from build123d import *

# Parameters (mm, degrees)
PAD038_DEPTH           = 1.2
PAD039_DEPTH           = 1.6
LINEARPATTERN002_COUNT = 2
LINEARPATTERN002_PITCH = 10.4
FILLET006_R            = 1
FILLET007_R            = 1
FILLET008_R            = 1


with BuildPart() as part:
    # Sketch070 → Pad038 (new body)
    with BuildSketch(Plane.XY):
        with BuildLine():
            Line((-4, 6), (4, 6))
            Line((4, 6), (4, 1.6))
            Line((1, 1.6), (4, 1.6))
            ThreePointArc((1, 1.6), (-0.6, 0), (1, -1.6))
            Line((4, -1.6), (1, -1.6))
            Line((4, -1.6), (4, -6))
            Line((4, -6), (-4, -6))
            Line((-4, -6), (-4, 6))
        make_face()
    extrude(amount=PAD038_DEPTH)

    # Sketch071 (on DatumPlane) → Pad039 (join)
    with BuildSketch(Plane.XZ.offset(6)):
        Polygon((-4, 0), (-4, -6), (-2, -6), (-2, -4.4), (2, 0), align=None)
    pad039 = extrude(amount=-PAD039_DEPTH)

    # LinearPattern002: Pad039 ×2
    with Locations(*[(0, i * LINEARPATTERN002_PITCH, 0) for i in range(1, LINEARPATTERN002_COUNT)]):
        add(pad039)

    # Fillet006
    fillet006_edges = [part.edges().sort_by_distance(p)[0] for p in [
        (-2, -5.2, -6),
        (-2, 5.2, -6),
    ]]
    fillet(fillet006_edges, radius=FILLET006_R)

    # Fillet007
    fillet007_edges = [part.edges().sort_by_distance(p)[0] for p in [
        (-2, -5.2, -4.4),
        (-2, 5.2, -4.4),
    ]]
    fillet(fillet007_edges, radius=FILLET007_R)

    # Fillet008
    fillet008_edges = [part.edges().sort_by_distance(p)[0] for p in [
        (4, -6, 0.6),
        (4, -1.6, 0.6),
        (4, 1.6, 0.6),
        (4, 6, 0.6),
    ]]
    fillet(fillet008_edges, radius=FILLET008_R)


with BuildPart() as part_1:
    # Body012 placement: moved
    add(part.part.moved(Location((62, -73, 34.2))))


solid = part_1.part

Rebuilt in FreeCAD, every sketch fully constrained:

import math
import FreeCAD as App
import Part
import Sketcher

V = App.Vector
Q = App.Units.Quantity


def edges_at(feature, points):
    """Names of the edges that pass closest to the given points."""
    edges = feature.Shape.Edges
    near = lambda p: min(range(len(edges)), key=lambda i: edges[i].distToShape(Part.Vertex(*p))[0])
    return sorted({f"Edge{near(p) + 1}" for p in points})


def add_polygon(sketch, points):
    """Adds a closed chain of lines whose ends are joined by coincident constraints."""
    first, n = sketch.GeometryCount, len(points)
    for a, b in zip(points, points[1:] + points[:1]):
        sketch.addGeometry(Part.LineSegment(App.Vector(*a, 0), App.Vector(*b, 0)), False)
    for i in range(n):
        sketch.addConstraint(Sketcher.Constraint("Coincident", first + i, 2, first + (i + 1) % n, 1))

doc = App.newDocument("Part")
params = doc.addObject("Spreadsheet::Sheet", "Params")
for row, (alias, value) in enumerate([
    ("sketch1_radius", "1.6 mm"),
    ("sketch1_width", "8 mm"),
    ("sketch1_width2", "3 mm"),
    ("sketch1_height", "12 mm"),
    ("pad1_length", "1.2 mm"),
    ("sketch2_width", "2 mm"),
    ("sketch2_width2", "6 mm"),
    ("sketch2_height", "1.6 mm"),
    ("pad2_length", "1.6 mm"),
    ("linearpattern_pitch", "10.4 mm"),
    ("fillet_radius", "1 mm"),
    ("fillet2_radius", "1 mm"),
    ("fillet3_radius", "1 mm"),
], start=1):
    params.set(f"A{row}", alias)
    params.set(f"B{row}", "=" + value)
    params.setAlias(f"B{row}", alias)

body = doc.addObject("PartDesign::Body", "Body")

# Sketch on XY plane
sketch1 = body.newObject("Sketcher::SketchObject", "Sketch")
sketch1.AttachmentSupport = (doc.getObject("XY_Plane"), [""])
sketch1.MapMode = "FlatFace"
sketch1.addGeometry([
    Part.LineSegment(V(4, 6, 0), V(-4, 6, 0)),  # 0
    Part.LineSegment(V(-4, 6, 0), V(-4, -6, 0)),  # 1
    Part.LineSegment(V(-4, -6, 0), V(4, -6, 0)),  # 2
    Part.LineSegment(V(4, -6, 0), V(4, -1.6, 0)),  # 3
    Part.LineSegment(V(4, -1.6, 0), V(1, -1.6, 0)),  # 4
    Part.ArcOfCircle(Part.Circle(V(1, 0, 0), V(0, 0, 1), 1.6), math.radians(90), math.radians(270)),  # 5
    Part.LineSegment(V(1, 1.6, 0), V(4, 1.6, 0)),  # 6
    Part.LineSegment(V(4, 1.6, 0), V(4, 6, 0)),  # 7
], False)
sketch1.addConstraint([
    Sketcher.Constraint("Coincident", 0, 2, 1, 1),
    Sketcher.Constraint("Coincident", 1, 2, 2, 1),
    Sketcher.Constraint("Coincident", 2, 2, 3, 1),
    Sketcher.Constraint("Coincident", 3, 2, 4, 1),
    Sketcher.Constraint("Tangent", 4, 2, 5, 2),
    Sketcher.Constraint("Tangent", 5, 1, 6, 1),
    Sketcher.Constraint("Coincident", 6, 2, 7, 1),
    Sketcher.Constraint("Coincident", 7, 2, 0, 1),
    Sketcher.Constraint("Horizontal", 0),
    Sketcher.Constraint("Vertical", 1),
    Sketcher.Constraint("Horizontal", 2),
    Sketcher.Constraint("Vertical", 3),
    Sketcher.Constraint("Horizontal", 4),
    Sketcher.Constraint("Horizontal", 6),
    Sketcher.Constraint("Vertical", 7),
    Sketcher.Constraint("Symmetric", 0, 2, 2, 2, -1, 1),
    Sketcher.Constraint("Symmetric", 3, 2, 6, 2, -1),
    Sketcher.Constraint("Radius", 5, Q("1.6 mm")),
    Sketcher.Constraint("DistanceX", 0, 2, 0, 1, Q("8 mm")),
    Sketcher.Constraint("DistanceX", 4, 2, 4, 1, Q("3 mm")),
    Sketcher.Constraint("DistanceY", 1, 2, 1, 1, Q("12 mm")),
])
sketch1.setExpression("Constraints[17]", "Params.sketch1_radius")
sketch1.setExpression("Constraints[18]", "Params.sketch1_width")
sketch1.setExpression("Constraints[19]", "Params.sketch1_width2")
sketch1.setExpression("Constraints[20]", "Params.sketch1_height")
pad1 = body.newObject("PartDesign::Pad", "Pad")
pad1.Profile = sketch1
pad1.setExpression("Length", "Params.pad1_length")

# Sketch on XZ plane
sketch2 = body.newObject("Sketcher::SketchObject", "Sketch001")
sketch2.AttachmentSupport = (doc.getObject("XZ_Plane"), [""])
sketch2.MapMode = "FlatFace"
sketch2.AttachmentOffset = App.Placement(V(0, 0, 6), App.Rotation())
add_polygon(sketch2, [(-4, 0), (-4, -6), (-2, -6), (-2, -4.4), (2, 0)])  # lines 0-4
sketch2.addConstraint([
    Sketcher.Constraint("Vertical", 0),
    Sketcher.Constraint("Horizontal", 1),
    Sketcher.Constraint("Vertical", 2),
    Sketcher.Constraint("Horizontal", 4),
    Sketcher.Constraint("PointOnObject", 3, 2, -1),
    Sketcher.Constraint("Equal", 4, 0),
    Sketcher.Constraint("DistanceX", 1, 1, 1, 2, Q("2 mm")),
    Sketcher.Constraint("DistanceX", 4, 2, 4, 1, Q("6 mm")),
    Sketcher.Constraint("DistanceY", 2, 1, 2, 2, Q("1.6 mm")),
    Sketcher.Constraint("DistanceX", 0, 2, -1, 1, Q("4 mm")),
])
sketch2.setExpression("Constraints[11]", "Params.sketch2_width")
sketch2.setExpression("Constraints[12]", "Params.sketch2_width2")
sketch2.setExpression("Constraints[13]", "Params.sketch2_height")
pad2 = body.newObject("PartDesign::Pad", "Pad001")
pad2.Profile = sketch2
pad2.setExpression("Length", "Params.pad2_length")
pad2.Reversed = True
doc.recompute()

linearpattern = body.newObject("PartDesign::LinearPattern", "LinearPattern")
linearpattern.Originals = [pad2]
linearpattern.Direction = (doc.getObject("Y_Axis"), [""])
linearpattern.Mode = "offset"
linearpattern.setExpression("Offset", "Params.linearpattern_pitch")
linearpattern.Occurrences = 2
body.Tip = linearpattern
doc.recompute()

fillet = body.newObject("PartDesign::Fillet", "Fillet")
fillet.Base = (linearpattern, edges_at(linearpattern, [(-2, -5.2, -6), (-2, 5.2, -6)]))
fillet.setExpression("Radius", "Params.fillet_radius")
doc.recompute()

fillet2 = body.newObject("PartDesign::Fillet", "Fillet001")
fillet2.Base = (fillet, edges_at(fillet, [(-2, -5.2, -4.4), (-2, 5.2, -4.4)]))
fillet2.setExpression("Radius", "Params.fillet2_radius")
doc.recompute()

fillet3 = body.newObject("PartDesign::Fillet", "Fillet002")
fillet3.Base = (fillet2, edges_at(fillet2, [
    (4, -6, 0.6),
    (4, -1.6, 0.6),
    (4, 1.6, 0.6),
    (4, 6, 0.6),
]))
fillet3.setExpression("Radius", "Params.fillet3_radius")
body2 = doc.addObject("PartDesign::Body", "Body001")
doc.recompute()

body.Placement = App.Placement(V(62, -73, 34.2), App.Rotation(V(0, 0, 1), 0))
boolean = body2.newObject("PartDesign::Boolean", "Boolean")
boolean.Type = "Fuse"
boolean.addObjects([body])

doc.recompute()
